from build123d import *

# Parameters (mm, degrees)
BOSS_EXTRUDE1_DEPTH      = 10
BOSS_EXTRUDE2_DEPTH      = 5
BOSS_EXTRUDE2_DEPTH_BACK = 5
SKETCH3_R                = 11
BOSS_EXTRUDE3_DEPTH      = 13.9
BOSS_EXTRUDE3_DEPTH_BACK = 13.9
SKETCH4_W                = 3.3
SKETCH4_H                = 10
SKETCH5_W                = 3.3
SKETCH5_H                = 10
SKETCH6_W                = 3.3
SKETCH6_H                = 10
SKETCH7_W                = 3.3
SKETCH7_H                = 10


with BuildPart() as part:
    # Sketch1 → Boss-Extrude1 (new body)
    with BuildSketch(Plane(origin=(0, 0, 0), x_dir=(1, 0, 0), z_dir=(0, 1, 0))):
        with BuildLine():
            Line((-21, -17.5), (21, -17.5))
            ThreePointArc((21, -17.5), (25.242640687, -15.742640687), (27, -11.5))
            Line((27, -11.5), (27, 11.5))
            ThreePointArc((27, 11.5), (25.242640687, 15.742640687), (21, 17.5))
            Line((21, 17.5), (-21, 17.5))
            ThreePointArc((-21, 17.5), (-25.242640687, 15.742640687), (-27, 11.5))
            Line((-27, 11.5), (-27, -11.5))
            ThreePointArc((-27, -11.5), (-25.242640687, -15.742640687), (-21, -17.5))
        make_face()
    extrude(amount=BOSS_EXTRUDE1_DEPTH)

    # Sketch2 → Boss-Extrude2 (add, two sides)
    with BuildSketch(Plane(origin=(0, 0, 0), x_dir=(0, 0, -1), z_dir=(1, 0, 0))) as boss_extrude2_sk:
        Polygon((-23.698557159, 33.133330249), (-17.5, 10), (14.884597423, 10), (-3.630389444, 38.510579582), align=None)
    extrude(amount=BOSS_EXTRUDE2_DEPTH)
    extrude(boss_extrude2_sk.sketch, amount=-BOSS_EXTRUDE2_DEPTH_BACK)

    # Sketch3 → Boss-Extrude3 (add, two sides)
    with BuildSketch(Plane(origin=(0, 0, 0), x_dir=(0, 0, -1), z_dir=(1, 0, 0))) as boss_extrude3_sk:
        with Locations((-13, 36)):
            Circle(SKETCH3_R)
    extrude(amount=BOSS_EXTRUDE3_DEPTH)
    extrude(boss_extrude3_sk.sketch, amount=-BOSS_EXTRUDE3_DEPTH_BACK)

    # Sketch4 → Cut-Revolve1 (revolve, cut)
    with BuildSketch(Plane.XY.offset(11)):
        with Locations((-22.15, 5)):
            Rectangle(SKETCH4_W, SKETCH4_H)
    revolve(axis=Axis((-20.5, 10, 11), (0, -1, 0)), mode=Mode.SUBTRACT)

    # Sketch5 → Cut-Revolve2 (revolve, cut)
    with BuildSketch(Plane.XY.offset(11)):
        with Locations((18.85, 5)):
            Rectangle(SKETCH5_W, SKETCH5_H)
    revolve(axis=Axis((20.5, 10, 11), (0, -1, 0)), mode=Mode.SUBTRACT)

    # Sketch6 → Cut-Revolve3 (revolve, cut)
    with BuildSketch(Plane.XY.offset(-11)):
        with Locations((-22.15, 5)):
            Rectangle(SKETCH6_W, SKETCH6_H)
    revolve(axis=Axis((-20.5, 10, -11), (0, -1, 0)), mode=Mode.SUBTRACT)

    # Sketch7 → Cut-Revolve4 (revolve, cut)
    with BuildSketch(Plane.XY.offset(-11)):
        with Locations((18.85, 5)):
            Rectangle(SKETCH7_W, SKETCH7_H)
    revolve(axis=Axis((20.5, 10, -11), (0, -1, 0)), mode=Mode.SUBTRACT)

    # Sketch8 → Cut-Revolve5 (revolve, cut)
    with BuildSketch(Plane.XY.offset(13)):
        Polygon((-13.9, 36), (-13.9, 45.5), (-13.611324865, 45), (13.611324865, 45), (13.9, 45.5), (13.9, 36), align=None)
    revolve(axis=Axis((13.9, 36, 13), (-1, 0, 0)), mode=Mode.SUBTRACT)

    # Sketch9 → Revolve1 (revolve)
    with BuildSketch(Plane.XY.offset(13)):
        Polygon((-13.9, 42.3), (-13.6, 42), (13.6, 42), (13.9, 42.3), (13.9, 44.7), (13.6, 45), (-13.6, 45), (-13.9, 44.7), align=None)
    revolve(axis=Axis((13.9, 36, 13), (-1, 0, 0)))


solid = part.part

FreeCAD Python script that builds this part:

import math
import FreeCAD as App
import Part
import Sketcher
from FreeCAD import Vector
Q = App.Units.Quantity

doc = App.newDocument("Part")
body = doc.addObject("PartDesign::Body", "Body")

# Sketch on XZ plane
sketch1 = doc.addObject("Sketcher::SketchObject", "Sketch")
body.addObject(sketch1)
sketch1.AttachmentSupport = (doc.XZ_Plane, [""])
sketch1.MapMode = "FlatFace"
sketch1.addGeometry([
    Part.LineSegment(Vector(-21, 18, 0), Vector(21, 18, 0)),  # 0
    Part.ArcOfCircle(Part.Circle(Vector(21, 12, 0), Vector(0, 0, 1), 6), math.radians(0), math.radians(90)),  # 1
    Part.LineSegment(Vector(27, 12, 0), Vector(27, -12, 0)),  # 2
    Part.ArcOfCircle(Part.Circle(Vector(21, -12, 0), Vector(0, 0, 1), 6), math.radians(-90), math.radians(0)),  # 3
    Part.LineSegment(Vector(21, -18, 0), Vector(-21, -18, 0)),  # 4
    Part.ArcOfCircle(Part.Circle(Vector(-21, -12, 0), Vector(0, 0, 1), 6), math.radians(180), math.radians(270)),  # 5
    Part.LineSegment(Vector(-27, -12, 0), Vector(-27, 12, 0)),  # 6
    Part.ArcOfCircle(Part.Circle(Vector(-21, 12, 0), Vector(0, 0, 1), 6), math.radians(90), math.radians(180)),  # 7
], False)
sketch1.addConstraint([
    Sketcher.Constraint("Tangent", 0, 2, 1, 2),
    Sketcher.Constraint("Tangent", 1, 1, 2, 1),
    Sketcher.Constraint("Tangent", 2, 2, 3, 2),
    Sketcher.Constraint("Tangent", 3, 1, 4, 1),
    Sketcher.Constraint("Tangent", 4, 2, 5, 2),
    Sketcher.Constraint("Tangent", 5, 1, 6, 1),
    Sketcher.Constraint("Tangent", 6, 2, 7, 2),
    Sketcher.Constraint("Tangent", 7, 1, 0, 1),
    Sketcher.Constraint("Horizontal", 0),
    Sketcher.Constraint("Vertical", 2),
    Sketcher.Constraint("Horizontal", 4),
    Sketcher.Constraint("Vertical", 6),
    Sketcher.Constraint("Equal", 1, 3),
    Sketcher.Constraint("Equal", 3, 5),
    Sketcher.Constraint("Equal", 5, 7),
    Sketcher.Constraint("Symmetric", 1, 3, 5, 3, -1, 1),
    Sketcher.Constraint("Radius", 1, 6.0),
    Sketcher.Constraint("DistanceX", 0, 1, 0, 2, 42.0),
    Sketcher.Constraint("DistanceY", 2, 2, 2, 1, 23.0),
])
pad1 = doc.addObject("PartDesign::Pad", "Pad")
body.addObject(pad1)
pad1.Profile = sketch1
pad1.Length = 10
pad1.Reversed = True

# Sketch on YZ plane
sketch2 = doc.addObject("Sketcher::SketchObject", "Sketch001")
body.addObject(sketch2)
sketch2.AttachmentSupport = (doc.YZ_Plane, [""])
sketch2.MapMode = "FlatFace"
sketch2.addGeometry([
    Part.LineSegment(Vector(33, 24, 0), Vector(10, 18, 0)),
    Part.LineSegment(Vector(10, 18, 0), Vector(10, -15, 0)),
    Part.LineSegment(Vector(10, -15, 0), Vector(39, 4, 0)),
    Part.LineSegment(Vector(39, 4, 0), Vector(33, 24, 0)),
], False)
sketch2.addConstraint([
    Sketcher.Constraint("Coincident", 0, 2, 1, 1),
    Sketcher.Constraint("Coincident", 1, 2, 2, 1),
    Sketcher.Constraint("Coincident", 2, 2, 3, 1),
    Sketcher.Constraint("Coincident", 3, 2, 0, 1),
    Sketcher.Constraint("Vertical", 1),
    Sketcher.Constraint("Perpendicular", 0, 3),
    Sketcher.Constraint("Angle", 0, Q("-165 deg")),
    Sketcher.Constraint("Angle", 2, Q("33 deg")),
    Sketcher.Constraint("DistanceX", -1, 1, 0, 2, 10.0),
    Sketcher.Constraint("DistanceY", -1, 1, 0, 2, 17.5),
    Sketcher.Constraint("Distance", 2, 33.994969),
    Sketcher.Constraint("DistanceY", 1, 2, 1, 1, 32.384597),
])
pad2 = doc.addObject("PartDesign::Pad", "Pad001")
body.addObject(pad2)
pad2.Profile = sketch2
pad2.Type = "TwoLengths"
pad2.Length = 5
pad2.Length2 = 5

# Sketch on YZ plane
sketch3 = doc.addObject("Sketcher::SketchObject", "Sketch002")
body.addObject(sketch3)
sketch3.AttachmentSupport = (doc.YZ_Plane, [""])
sketch3.MapMode = "FlatFace"
sketch3.addGeometry(Part.Circle(Vector(36, 13, 0), Vector(0, 0, 1), 11), False)
sketch3.addConstraint([
    Sketcher.Constraint("Diameter", 0, 22.0),
    Sketcher.Constraint("DistanceX", -1, 1, 0, 3, 36.0),
    Sketcher.Constraint("DistanceY", -1, 1, 0, 3, 13.0),
])
pad3 = doc.addObject("PartDesign::Pad", "Pad002")
body.addObject(pad3)
pad3.Profile = sketch3
pad3.Type = "TwoLengths"
pad3.Length = 13.9
pad3.Length2 = 13.9

# Sketch on XY plane
sketch4 = doc.addObject("Sketcher::SketchObject", "Sketch003")
body.addObject(sketch4)
sketch4.AttachmentSupport = (doc.XY_Plane, [""])
sketch4.MapMode = "FlatFace"
sketch4.AttachmentOffset = App.Placement(Vector(0, 0, 11), App.Rotation())
sketch4.addGeometry([
    Part.LineSegment(Vector(-23.8, 10, 0), Vector(-23.8, 0, 0)),
    Part.LineSegment(Vector(-23.8, 0, 0), Vector(-20.5, 0, 0)),
    Part.LineSegment(Vector(-20.5, 0, 0), Vector(-20.5, 10, 0)),
    Part.LineSegment(Vector(-20.5, 10, 0), Vector(-23.8, 10, 0)),
], False)
sketch4.addGeometry(Part.LineSegment(Vector(-20.5, 10, 0), Vector(-20.5, 0, 0)), True)  # axis
sketch4.addConstraint([
    Sketcher.Constraint("Coincident", 0, 2, 1, 1),
    Sketcher.Constraint("Coincident", 1, 2, 2, 1),
    Sketcher.Constraint("Coincident", 2, 2, 3, 1),
    Sketcher.Constraint("Coincident", 3, 2, 0, 1),
    Sketcher.Constraint("Vertical", 0),
    Sketcher.Constraint("Horizontal", 1),
    Sketcher.Constraint("Vertical", 2),
    Sketcher.Constraint("Horizontal", 3),
    Sketcher.Constraint("Vertical", 4),
    Sketcher.Constraint("Coincident", 4, 1, 2, 2),
    Sketcher.Constraint("PointOnObject", 0, 2, -1),
    Sketcher.Constraint("PointOnObject", 4, 2, -1),
    Sketcher.Constraint("DistanceY", 0, 2, 0, 1, 10.0),
    Sketcher.Constraint("DistanceX", 1, 1, 1, 2, 3.3),
    Sketcher.Constraint("DistanceX", 0, 2, -1, 1, 23.8),
])
groove = doc.addObject("PartDesign::Groove", "Groove")
body.addObject(groove)
groove.Profile = sketch4
groove.ReferenceAxis = (sketch4, ["Axis0"])
groove.Angle = 360

# Sketch on XY plane
sketch5 = doc.addObject("Sketcher::SketchObject", "Sketch004")
body.addObject(sketch5)
sketch5.AttachmentSupport = (doc.XY_Plane, [""])
sketch5.MapMode = "FlatFace"
sketch5.AttachmentOffset = App.Placement(Vector(0, 0, 11), App.Rotation())
sketch5.addGeometry([
    Part.LineSegment(Vector(17.2, 10, 0), Vector(17.2, 0, 0)),
    Part.LineSegment(Vector(17.2, 0, 0), Vector(20.5, 0, 0)),
    Part.LineSegment(Vector(20.5, 0, 0), Vector(20.5, 10, 0)),
    Part.LineSegment(Vector(20.5, 10, 0), Vector(17.2, 10, 0)),
], False)
sketch5.addGeometry(Part.LineSegment(Vector(20.5, 10, 0), Vector(20.5, 0, 0)), True)  # axis
sketch5.addConstraint([
    Sketcher.Constraint("Coincident", 0, 2, 1, 1),
    Sketcher.Constraint("Coincident", 1, 2, 2, 1),
    Sketcher.Constraint("Coincident", 2, 2, 3, 1),
    Sketcher.Constraint("Coincident", 3, 2, 0, 1),
    Sketcher.Constraint("Vertical", 0),
    Sketcher.Constraint("Horizontal", 1),
    Sketcher.Constraint("Vertical", 2),
    Sketcher.Constraint("Horizontal", 3),
    Sketcher.Constraint("Vertical", 4),
    Sketcher.Constraint("Coincident", 4, 1, 2, 2),
    Sketcher.Constraint("PointOnObject", 0, 2, -1),
    Sketcher.Constraint("PointOnObject", 4, 2, -1),
    Sketcher.Constraint("DistanceY", 0, 2, 0, 1, 10.0),
    Sketcher.Constraint("DistanceX", 1, 1, 1, 2, 3.3),
    Sketcher.Constraint("DistanceX", -1, 1, 0, 2, 17.2),
])
groove2 = doc.addObject("PartDesign::Groove", "Groove001")
body.addObject(groove2)
groove2.Profile = sketch5
groove2.ReferenceAxis = (sketch5, ["Axis0"])
groove2.Angle = 360

# Sketch on XY plane
sketch6 = doc.addObject("Sketcher::SketchObject", "Sketch005")
body.addObject(sketch6)
sketch6.AttachmentSupport = (doc.XY_Plane, [""])
sketch6.MapMode = "FlatFace"
sketch6.AttachmentOffset = App.Placement(Vector(0, 0, -11), App.Rotation())
sketch6.addGeometry([
    Part.LineSegment(Vector(-23.8, 10, 0), Vector(-23.8, 0, 0)),
    Part.LineSegment(Vector(-23.8, 0, 0), Vector(-20.5, 0, 0)),
    Part.LineSegment(Vector(-20.5, 0, 0), Vector(-20.5, 10, 0)),
    Part.LineSegment(Vector(-20.5, 10, 0), Vector(-23.8, 10, 0)),
], False)
sketch6.addGeometry(Part.LineSegment(Vector(-20.5, 10, 0), Vector(-20.5, 0, 0)), True)  # axis
sketch6.addConstraint([
    Sketcher.Constraint("Coincident", 0, 2, 1, 1),
    Sketcher.Constraint("Coincident", 1, 2, 2, 1),
    Sketcher.Constraint("Coincident", 2, 2, 3, 1),
    Sketcher.Constraint("Coincident", 3, 2, 0, 1),
    Sketcher.Constraint("Vertical", 0),
    Sketcher.Constraint("Horizontal", 1),
    Sketcher.Constraint("Vertical", 2),
    Sketcher.Constraint("Horizontal", 3),
    Sketcher.Constraint("Vertical", 4),
    Sketcher.Constraint("Coincident", 4, 1, 2, 2),
    Sketcher.Constraint("PointOnObject", 0, 2, -1),
    Sketcher.Constraint("PointOnObject", 4, 2, -1),
    Sketcher.Constraint("DistanceY", 0, 2, 0, 1, 10.0),
    Sketcher.Constraint("DistanceX", 1, 1, 1, 2, 3.3),
    Sketcher.Constraint("DistanceX", 0, 2, -1, 1, 23.8),
])
groove3 = doc.addObject("PartDesign::Groove", "Groove002")
body.addObject(groove3)
groove3.Profile = sketch6
groove3.ReferenceAxis = (sketch6, ["Axis0"])
groove3.Angle = 360

# Sketch on XY plane
sketch7 = doc.addObject("Sketcher::SketchObject", "Sketch006")
body.addObject(sketch7)
sketch7.AttachmentSupport = (doc.XY_Plane, [""])
sketch7.MapMode = "FlatFace"
sketch7.AttachmentOffset = App.Placement(Vector(0, 0, -11), App.Rotation())
sketch7.addGeometry([
    Part.LineSegment(Vector(17.2, 10, 0), Vector(17.2, 0, 0)),
    Part.LineSegment(Vector(17.2, 0, 0), Vector(20.5, 0, 0)),
    Part.LineSegment(Vector(20.5, 0, 0), Vector(20.5, 10, 0)),
    Part.LineSegment(Vector(20.5, 10, 0), Vector(17.2, 10, 0)),
], False)
sketch7.addGeometry(Part.LineSegment(Vector(20.5, 10, 0), Vector(20.5, 0, 0)), True)  # axis
sketch7.addConstraint([
    Sketcher.Constraint("Coincident", 0, 2, 1, 1),
    Sketcher.Constraint("Coincident", 1, 2, 2, 1),
    Sketcher.Constraint("Coincident", 2, 2, 3, 1),
    Sketcher.Constraint("Coincident", 3, 2, 0, 1),
    Sketcher.Constraint("Vertical", 0),
    Sketcher.Constraint("Horizontal", 1),
    Sketcher.Constraint("Vertical", 2),
    Sketcher.Constraint("Horizontal", 3),
    Sketcher.Constraint("Vertical", 4),
    Sketcher.Constraint("Coincident", 4, 1, 2, 2),
    Sketcher.Constraint("PointOnObject", 0, 2, -1),
    Sketcher.Constraint("PointOnObject", 4, 2, -1),
    Sketcher.Constraint("DistanceY", 0, 2, 0, 1, 10.0),
    Sketcher.Constraint("DistanceX", 1, 1, 1, 2, 3.3),
    Sketcher.Constraint("DistanceX", -1, 1, 0, 2, 17.2),
])
groove4 = doc.addObject("PartDesign::Groove", "Groove003")
body.addObject(groove4)
groove4.Profile = sketch7
groove4.ReferenceAxis = (sketch7, ["Axis0"])
groove4.Angle = 360

# Sketch on XY plane
sketch8 = doc.addObject("Sketcher::SketchObject", "Sketch007")
body.addObject(sketch8)
sketch8.AttachmentSupport = (doc.XY_Plane, [""])
sketch8.MapMode = "FlatFace"
sketch8.AttachmentOffset = App.Placement(Vector(0, 0, 13), App.Rotation())
sketch8.addGeometry([
    Part.LineSegment(Vector(-13.9, 45.5, 0), Vector(-13.9, 36, 0)),  # 0
    Part.LineSegment(Vector(-13.9, 36, 0), Vector(13.9, 36, 0)),  # 1
    Part.LineSegment(Vector(13.9, 36, 0), Vector(13.9, 45.5, 0)),  # 2
    Part.LineSegment(Vector(13.9, 45.5, 0), Vector(13.6, 45, 0)),  # 3
    Part.LineSegment(Vector(13.6, 45, 0), Vector(-13.6, 45, 0)),  # 4
    Part.LineSegment(Vector(-13.6, 45, 0), Vector(-13.9, 45.5, 0)),  # 5
], False)
sketch8.addGeometry(Part.LineSegment(Vector(13.9, 36, 0), Vector(-13.9, 36, 0)), True)  # axis
sketch8.addConstraint([
    Sketcher.Constraint("Coincident", 0, 2, 1, 1),
    Sketcher.Constraint("Coincident", 1, 2, 2, 1),
    Sketcher.Constraint("Coincident", 2, 2, 3, 1),
    Sketcher.Constraint("Coincident", 3, 2, 4, 1),
    Sketcher.Constraint("Coincident", 4, 2, 5, 1),
    Sketcher.Constraint("Coincident", 5, 2, 0, 1),
    Sketcher.Constraint("Vertical", 0),
    Sketcher.Constraint("Horizontal", 1),
    Sketcher.Constraint("Vertical", 2),
    Sketcher.Constraint("Horizontal", 4),
    Sketcher.Constraint("Horizontal", 6),
    Sketcher.Constraint("Coincident", 6, 1, 1, 2),
    Sketcher.Constraint("Symmetric", 2, 2, 5, 2, -2),
    Sketcher.Constraint("Vertical", 5, 2, 6, 2),
    Sketcher.Constraint("Equal", 3, 5),
    Sketcher.Constraint("Angle", 3, Q("-120 deg")),
    Sketcher.Constraint("DistanceX", 1, 1, 1, 2, 27.8),
    Sketcher.Constraint("DistanceY", 0, 2, 0, 1, 9.5),
    Sketcher.Constraint("DistanceY", -1, 1, 0, 2, 36.0),
    Sketcher.Constraint("DistanceY", -1, 1, 3, 2, 45.0),
])
groove5 = doc.addObject("PartDesign::Groove", "Groove004")
body.addObject(groove5)
groove5.Profile = sketch8
groove5.ReferenceAxis = (sketch8, ["Axis0"])
groove5.Angle = 360

# Sketch on XY plane
sketch9 = doc.addObject("Sketcher::SketchObject", "Sketch008")
body.addObject(sketch9)
sketch9.AttachmentSupport = (doc.XY_Plane, [""])
sketch9.MapMode = "FlatFace"
sketch9.AttachmentOffset = App.Placement(Vector(0, 0, 13), App.Rotation())
sketch9.addGeometry([
    Part.LineSegment(Vector(-13.9, 42.3, 0), Vector(-13.6, 42, 0)),  # 0
    Part.LineSegment(Vector(-13.6, 42, 0), Vector(13.6, 42, 0)),  # 1
    Part.LineSegment(Vector(13.6, 42, 0), Vector(13.9, 42.3, 0)),  # 2
    Part.LineSegment(Vector(13.9, 42.3, 0), Vector(13.9, 44.7, 0)),  # 3
    Part.LineSegment(Vector(13.9, 44.7, 0), Vector(13.6, 45, 0)),  # 4
    Part.LineSegment(Vector(13.6, 45, 0), Vector(-13.6, 45, 0)),  # 5
    Part.LineSegment(Vector(-13.6, 45, 0), Vector(-13.9, 44.7, 0)),  # 6
    Part.LineSegment(Vector(-13.9, 44.7, 0), Vector(-13.9, 42.3, 0)),  # 7
], False)
sketch9.addGeometry(Part.LineSegment(Vector(13.9, 36, 0), Vector(-13.9, 36, 0)), True)  # axis
sketch9.addConstraint([
    Sketcher.Constraint("Coincident", 0, 2, 1, 1),
    Sketcher.Constraint("Coincident", 1, 2, 2, 1),
    Sketcher.Constraint("Coincident", 2, 2, 3, 1),
    Sketcher.Constraint("Coincident", 3, 2, 4, 1),
    Sketcher.Constraint("Coincident", 4, 2, 5, 1),
    Sketcher.Constraint("Coincident", 5, 2, 6, 1),
    Sketcher.Constraint("Coincident", 6, 2, 7, 1),
    Sketcher.Constraint("Coincident", 7, 2, 0, 1),
    Sketcher.Constraint("Horizontal", 1),
    Sketcher.Constraint("Vertical", 3),
    Sketcher.Constraint("Horizontal", 5),
    Sketcher.Constraint("Vertical", 7),
    Sketcher.Constraint("Horizontal", 8),
    Sketcher.Constraint("Symmetric", 3, 2, 6, 2, -2),
    Sketcher.Constraint("Perpendicular", 0, 2),
    Sketcher.Constraint("Perpendicular", 2, 4),
    Sketcher.Constraint("Perpendicular", 4, 6),
    Sketcher.Constraint("Horizontal", 2, 2, 7, 2),
    Sketcher.Constraint("Vertical", 1, 2, 4, 2),
    Sketcher.Constraint("Vertical", 0, 2, 5, 2),
    Sketcher.Constraint("Vertical", 3, 2, 8, 1),
    Sketcher.Constraint("Vertical", 7, 2, 8, 2),
    Sketcher.Constraint("DistanceX", 1, 1, 1, 2, 27.2),
    Sketcher.Constraint("DistanceX", 8, 2, 8, 1, 27.8),
    Sketcher.Constraint("DistanceY", 3, 1, 3, 2, 2.4),
    Sketcher.Constraint("DistanceY", -1, 1, 0, 2, 42.0),
    Sketcher.Constraint("DistanceY", -1, 1, 8, 1, 36.0),
])
revolution = doc.addObject("PartDesign::Revolution", "Revolution")
body.addObject(revolution)
revolution.Profile = sketch9
revolution.ReferenceAxis = (sketch9, ["Axis0"])
revolution.Angle = 360

doc.recompute()
